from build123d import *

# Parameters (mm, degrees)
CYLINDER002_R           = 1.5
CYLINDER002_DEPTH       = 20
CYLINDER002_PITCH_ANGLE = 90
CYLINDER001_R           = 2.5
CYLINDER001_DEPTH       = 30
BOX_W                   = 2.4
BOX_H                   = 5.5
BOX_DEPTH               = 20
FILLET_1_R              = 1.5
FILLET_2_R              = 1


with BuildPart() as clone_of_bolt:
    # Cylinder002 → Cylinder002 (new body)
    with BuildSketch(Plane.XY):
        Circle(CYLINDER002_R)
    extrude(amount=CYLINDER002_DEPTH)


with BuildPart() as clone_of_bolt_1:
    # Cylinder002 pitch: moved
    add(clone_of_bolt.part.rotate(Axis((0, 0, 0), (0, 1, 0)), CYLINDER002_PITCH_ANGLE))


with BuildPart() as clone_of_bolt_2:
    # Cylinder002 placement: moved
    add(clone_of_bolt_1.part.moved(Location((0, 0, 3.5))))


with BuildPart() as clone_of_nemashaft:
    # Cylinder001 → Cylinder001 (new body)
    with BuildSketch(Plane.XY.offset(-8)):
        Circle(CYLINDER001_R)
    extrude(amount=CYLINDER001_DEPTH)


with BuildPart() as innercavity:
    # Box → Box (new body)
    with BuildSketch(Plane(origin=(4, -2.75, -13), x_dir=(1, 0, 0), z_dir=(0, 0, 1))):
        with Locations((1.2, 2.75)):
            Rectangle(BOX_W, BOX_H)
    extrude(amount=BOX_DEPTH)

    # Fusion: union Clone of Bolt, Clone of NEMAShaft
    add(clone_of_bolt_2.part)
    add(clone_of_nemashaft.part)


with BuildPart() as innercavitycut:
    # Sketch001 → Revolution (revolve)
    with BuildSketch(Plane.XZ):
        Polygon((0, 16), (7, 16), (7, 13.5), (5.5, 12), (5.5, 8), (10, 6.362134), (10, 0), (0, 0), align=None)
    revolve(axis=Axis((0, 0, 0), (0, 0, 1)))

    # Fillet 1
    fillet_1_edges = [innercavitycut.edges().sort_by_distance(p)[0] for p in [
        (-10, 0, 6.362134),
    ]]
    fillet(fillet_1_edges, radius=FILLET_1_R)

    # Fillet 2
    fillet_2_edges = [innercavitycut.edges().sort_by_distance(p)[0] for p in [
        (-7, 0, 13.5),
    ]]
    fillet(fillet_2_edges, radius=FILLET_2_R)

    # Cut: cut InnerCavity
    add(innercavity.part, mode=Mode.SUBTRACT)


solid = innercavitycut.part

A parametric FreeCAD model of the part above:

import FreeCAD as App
import Part
import Sketcher
Q = App.Units.Quantity


def edges_at(feature, points):
    """Names of the edges that pass closest to the given points."""
    edges = feature.Shape.Edges
    near = lambda p: min(range(len(edges)), key=lambda i: edges[i].distToShape(Part.Vertex(*p))[0])
    return sorted({f"Edge{near(p) + 1}" for p in points})


def add_polygon(sketch, points):
    """Adds a closed chain of lines whose ends are joined by coincident constraints."""
    first, n = sketch.GeometryCount, len(points)
    for a, b in zip(points, points[1:] + points[:1]):
        sketch.addGeometry(Part.LineSegment(App.Vector(*a, 0), App.Vector(*b, 0)), False)
    for i in range(n):
        sketch.addConstraint(Sketcher.Constraint("Coincident", first + i, 2, first + (i + 1) % n, 1))

doc = App.newDocument("Part")
body = doc.addObject("PartDesign::Body", "Body")

sketch1 = doc.addObject("Sketcher::SketchObject", "Sketch")
body.addObject(sketch1)
sketch1.AttachmentSupport = (doc.XY_Plane, [""])
sketch1.MapMode = "FlatFace"
sketch1.addGeometry(Part.Circle(App.Vector(0, 0, 0), App.Vector(0, 0, 1), 1.5), False)
sketch1.addConstraint([
    Sketcher.Constraint("Coincident", 0, 3, -1, 1),
    Sketcher.Constraint("Diameter", 0, 3.0),
])
pad1 = doc.addObject("PartDesign::Pad", "Pad")
body.addObject(pad1)
pad1.Profile = sketch1
pad1.Length = 20
body2 = doc.addObject("PartDesign::Body", "Body001")
doc.recompute()

body.Placement = App.Placement(App.Vector(0, 0, 0), App.Rotation(App.Vector(0, 1, 0), 90))
boolean = doc.addObject("PartDesign::Boolean", "Boolean")
body2.addObject(boolean)
boolean.Type = "Fuse"
boolean.addObjects([body])
body3 = doc.addObject("PartDesign::Body", "Body002")
doc.recompute()

body2.Placement = App.Placement(App.Vector(0, 0, 3.5), App.Rotation(App.Vector(0, 0, 1), 0))
boolean2 = doc.addObject("PartDesign::Boolean", "Boolean001")
body3.addObject(boolean2)
boolean2.Type = "Fuse"
boolean2.addObjects([body2])
body4 = doc.addObject("PartDesign::Body", "Body003")

sketch2 = doc.addObject("Sketcher::SketchObject", "Sketch001")
body4.addObject(sketch2)
sketch2.AttachmentSupport = (doc.getObject("XY_Plane003"), [""])
sketch2.MapMode = "FlatFace"
sketch2.AttachmentOffset = App.Placement(App.Vector(0, 0, -8), App.Rotation())
sketch2.addGeometry(Part.Circle(App.Vector(0, 0, 0), App.Vector(0, 0, 1), 2.5), False)
sketch2.addConstraint([
    Sketcher.Constraint("Coincident", 0, 3, -1, 1),
    Sketcher.Constraint("Diameter", 0, 5.0),
])
pad2 = doc.addObject("PartDesign::Pad", "Pad001")
body4.addObject(pad2)
pad2.Profile = sketch2
pad2.Length = 30
body5 = doc.addObject("PartDesign::Body", "Body004")

sketch3 = doc.addObject("Sketcher::SketchObject", "Sketch002")
body5.addObject(sketch3)
sketch3.AttachmentSupport = (doc.getObject("XY_Plane004"), [""])
sketch3.MapMode = "FlatFace"
sketch3.AttachmentOffset = App.Placement(App.Vector(0, 0, -13), App.Rotation())
add_polygon(sketch3, [(4, 2.75), (4, -2.75), (6.4, -2.75), (6.4, 2.75)])
sketch3.addConstraint([
    Sketcher.Constraint("Vertical", 0),
    Sketcher.Constraint("Horizontal", 1),
    Sketcher.Constraint("Vertical", 2),
    Sketcher.Constraint("Horizontal", 3),
    Sketcher.Constraint("DistanceX", 1, 1, 1, 2, 2.4),
    Sketcher.Constraint("DistanceY", 0, 2, 0, 1, 5.5),
    Sketcher.Constraint("DistanceX", -1, 1, 0, 2, 4.0),
    Sketcher.Constraint("DistanceY", 0, 2, -1, 1, 2.75),
])
pad3 = doc.addObject("PartDesign::Pad", "Pad002")
body5.addObject(pad3)
pad3.Profile = sketch3
pad3.Length = 20
doc.recompute()

boolean3 = doc.addObject("PartDesign::Boolean", "Boolean002")
body5.addObject(boolean3)
boolean3.Type = "Fuse"
boolean3.addObjects([body3])
doc.recompute()

boolean4 = doc.addObject("PartDesign::Boolean", "Boolean003")
body5.addObject(boolean4)
boolean4.Type = "Fuse"
boolean4.addObjects([body4])
body6 = doc.addObject("PartDesign::Body", "Body005")

sketch4 = doc.addObject("Sketcher::SketchObject", "Sketch003")
body6.addObject(sketch4)
sketch4.AttachmentSupport = (doc.getObject("XZ_Plane005"), [""])
sketch4.MapMode = "FlatFace"
add_polygon(sketch4, [(7, 16), (0, 16), (0, 0), (10, 0), (10, 6.362134), (5.5, 8), (5.5, 12), (7, 13.5)])
sketch4.addConstraint([
    Sketcher.Constraint("Horizontal", 0),
    Sketcher.Constraint("Vertical", 1),
    Sketcher.Constraint("Horizontal", 2),
    Sketcher.Constraint("Vertical", 3),
    Sketcher.Constraint("Vertical", 5),
    Sketcher.Constraint("Vertical", 7),
    Sketcher.Constraint("Coincident", 1, 2, -1, 1),
    Sketcher.Constraint("DistanceX", 0, 2, 0, 1, 7.0),
    Sketcher.Constraint("DistanceX", 2, 1, 2, 2, 10.0),
    Sketcher.Constraint("DistanceY", 1, 2, 1, 1, 16.0),
    Sketcher.Constraint("DistanceY", 5, 1, 5, 2, 4.0),
    Sketcher.Constraint("Angle", 4, Q("160.000001 deg")),
    Sketcher.Constraint("Angle", 6, Q("45 deg")),
    Sketcher.Constraint("DistanceY", 7, 1, 7, 2, 2.5),
    Sketcher.Constraint("DistanceY", -1, 1, 4, 2, 8.0),
])
revolution = doc.addObject("PartDesign::Revolution", "Revolution")
body6.addObject(revolution)
revolution.Profile = sketch4
revolution.ReferenceAxis = (sketch4, ["V_Axis"])
revolution.Angle = 360
doc.recompute()

fillet = doc.addObject("PartDesign::Fillet", "Fillet")
body6.addObject(fillet)
fillet.Base = (revolution, edges_at(revolution, [(-10, 0, 6.362)]))
fillet.Radius = 1.5
doc.recompute()

fillet2 = doc.addObject("PartDesign::Fillet", "Fillet001")
body6.addObject(fillet2)
fillet2.Base = (fillet, edges_at(fillet, [(-7, 0, 13.5)]))
fillet2.Radius = 1
doc.recompute()

boolean5 = doc.addObject("PartDesign::Boolean", "Boolean004")
body6.addObject(boolean5)
boolean5.Type = "Cut"
boolean5.addObjects([body5])

doc.recompute()
